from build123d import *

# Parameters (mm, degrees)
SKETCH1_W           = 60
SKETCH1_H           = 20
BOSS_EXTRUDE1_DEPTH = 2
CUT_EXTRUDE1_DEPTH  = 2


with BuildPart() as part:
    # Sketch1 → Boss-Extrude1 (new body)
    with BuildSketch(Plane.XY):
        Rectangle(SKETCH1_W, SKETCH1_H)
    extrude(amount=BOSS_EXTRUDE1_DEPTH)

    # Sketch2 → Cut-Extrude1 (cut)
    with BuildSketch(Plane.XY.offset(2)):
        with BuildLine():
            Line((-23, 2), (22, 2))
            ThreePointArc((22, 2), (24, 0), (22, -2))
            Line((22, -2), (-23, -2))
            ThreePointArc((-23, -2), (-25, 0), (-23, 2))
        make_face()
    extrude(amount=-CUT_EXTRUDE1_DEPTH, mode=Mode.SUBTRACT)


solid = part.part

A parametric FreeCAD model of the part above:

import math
import FreeCAD as App
import Part
import Sketcher
from FreeCAD import Vector

doc = App.newDocument("Part")
body = doc.addObject("PartDesign::Body", "Body")

sketch1 = body.newObject("Sketcher::SketchObject", "Sketch")
sketch1.AttachmentSupport = (doc.getObject("XY_Plane"), [""])
sketch1.MapMode = "FlatFace"
sketch1.addGeometry(Part.LineSegment(Vector(-30, 10, 0), Vector(-30, -10, 0)), False)
sketch1.addGeometry(Part.LineSegment(Vector(-30, -10, 0), Vector(30, -10, 0)), False)
sketch1.addGeometry(Part.LineSegment(Vector(30, -10, 0), Vector(30, 10, 0)), False)
sketch1.addGeometry(Part.LineSegment(Vector(30, 10, 0), Vector(-30, 10, 0)), False)
sketch1.addConstraint(Sketcher.Constraint("Coincident", 0, 2, 1, 1))
sketch1.addConstraint(Sketcher.Constraint("Coincident", 1, 2, 2, 1))
sketch1.addConstraint(Sketcher.Constraint("Coincident", 2, 2, 3, 1))
sketch1.addConstraint(Sketcher.Constraint("Coincident", 3, 2, 0, 1))
sketch1.addConstraint(Sketcher.Constraint("Vertical", 0))
sketch1.addConstraint(Sketcher.Constraint("Horizontal", 1))
sketch1.addConstraint(Sketcher.Constraint("Vertical", 2))
sketch1.addConstraint(Sketcher.Constraint("Horizontal", 3))
sketch1.addConstraint(Sketcher.Constraint("Symmetric", 0, 2, 2, 2, -1, 1))
sketch1.addConstraint(Sketcher.Constraint("DistanceX", 1, 1, 1, 2, 60.0))
sketch1.addConstraint(Sketcher.Constraint("DistanceY", 0, 2, 0, 1, 20.0))
pad1 = body.newObject("PartDesign::Pad", "Pad")
pad1.Profile = sketch1
pad1.Length = 2

sketch2 = body.newObject("Sketcher::SketchObject", "Sketch001")
sketch2.AttachmentSupport = (doc.getObject("XY_Plane"), [""])
sketch2.MapMode = "FlatFace"
sketch2.AttachmentOffset = App.Placement(Vector(0, 0, 2), App.Rotation())
sketch2.addGeometry(Part.LineSegment(Vector(22, 2, 0), Vector(-23, 2, 0)), False)
sketch2.addGeometry(Part.ArcOfCircle(Part.Circle(Vector(-23, 0, 0), Vector(0, 0, 1), 2), math.radians(90), math.radians(270)), False)
sketch2.addGeometry(Part.LineSegment(Vector(-23, -2, 0), Vector(22, -2, 0)), False)
sketch2.addGeometry(Part.ArcOfCircle(Part.Circle(Vector(22, 0, 0), Vector(0, 0, 1), 2), math.radians(-90), math.radians(90)), False)
sketch2.addConstraint(Sketcher.Constraint("Tangent", 0, 2, 1, 1))
sketch2.addConstraint(Sketcher.Constraint("Tangent", 1, 2, 2, 1))
sketch2.addConstraint(Sketcher.Constraint("Tangent", 2, 2, 3, 1))
sketch2.addConstraint(Sketcher.Constraint("Tangent", 3, 2, 0, 1))
sketch2.addConstraint(Sketcher.Constraint("Horizontal", 0))
sketch2.addConstraint(Sketcher.Constraint("Horizontal", 2))
sketch2.addConstraint(Sketcher.Constraint("PointOnObject", 1, 3, -1))
sketch2.addConstraint(Sketcher.Constraint("Radius", 1, 2.0))
sketch2.addConstraint(Sketcher.Constraint("DistanceX", 0, 2, 0, 1, 45.0))
sketch2.addConstraint(Sketcher.Constraint("DistanceX", 1, 3, -1, 1, 23.0))
pocket1 = body.newObject("PartDesign::Pocket", "Pocket")
pocket1.Profile = sketch2
pocket1.Length = 2

doc.recompute()
